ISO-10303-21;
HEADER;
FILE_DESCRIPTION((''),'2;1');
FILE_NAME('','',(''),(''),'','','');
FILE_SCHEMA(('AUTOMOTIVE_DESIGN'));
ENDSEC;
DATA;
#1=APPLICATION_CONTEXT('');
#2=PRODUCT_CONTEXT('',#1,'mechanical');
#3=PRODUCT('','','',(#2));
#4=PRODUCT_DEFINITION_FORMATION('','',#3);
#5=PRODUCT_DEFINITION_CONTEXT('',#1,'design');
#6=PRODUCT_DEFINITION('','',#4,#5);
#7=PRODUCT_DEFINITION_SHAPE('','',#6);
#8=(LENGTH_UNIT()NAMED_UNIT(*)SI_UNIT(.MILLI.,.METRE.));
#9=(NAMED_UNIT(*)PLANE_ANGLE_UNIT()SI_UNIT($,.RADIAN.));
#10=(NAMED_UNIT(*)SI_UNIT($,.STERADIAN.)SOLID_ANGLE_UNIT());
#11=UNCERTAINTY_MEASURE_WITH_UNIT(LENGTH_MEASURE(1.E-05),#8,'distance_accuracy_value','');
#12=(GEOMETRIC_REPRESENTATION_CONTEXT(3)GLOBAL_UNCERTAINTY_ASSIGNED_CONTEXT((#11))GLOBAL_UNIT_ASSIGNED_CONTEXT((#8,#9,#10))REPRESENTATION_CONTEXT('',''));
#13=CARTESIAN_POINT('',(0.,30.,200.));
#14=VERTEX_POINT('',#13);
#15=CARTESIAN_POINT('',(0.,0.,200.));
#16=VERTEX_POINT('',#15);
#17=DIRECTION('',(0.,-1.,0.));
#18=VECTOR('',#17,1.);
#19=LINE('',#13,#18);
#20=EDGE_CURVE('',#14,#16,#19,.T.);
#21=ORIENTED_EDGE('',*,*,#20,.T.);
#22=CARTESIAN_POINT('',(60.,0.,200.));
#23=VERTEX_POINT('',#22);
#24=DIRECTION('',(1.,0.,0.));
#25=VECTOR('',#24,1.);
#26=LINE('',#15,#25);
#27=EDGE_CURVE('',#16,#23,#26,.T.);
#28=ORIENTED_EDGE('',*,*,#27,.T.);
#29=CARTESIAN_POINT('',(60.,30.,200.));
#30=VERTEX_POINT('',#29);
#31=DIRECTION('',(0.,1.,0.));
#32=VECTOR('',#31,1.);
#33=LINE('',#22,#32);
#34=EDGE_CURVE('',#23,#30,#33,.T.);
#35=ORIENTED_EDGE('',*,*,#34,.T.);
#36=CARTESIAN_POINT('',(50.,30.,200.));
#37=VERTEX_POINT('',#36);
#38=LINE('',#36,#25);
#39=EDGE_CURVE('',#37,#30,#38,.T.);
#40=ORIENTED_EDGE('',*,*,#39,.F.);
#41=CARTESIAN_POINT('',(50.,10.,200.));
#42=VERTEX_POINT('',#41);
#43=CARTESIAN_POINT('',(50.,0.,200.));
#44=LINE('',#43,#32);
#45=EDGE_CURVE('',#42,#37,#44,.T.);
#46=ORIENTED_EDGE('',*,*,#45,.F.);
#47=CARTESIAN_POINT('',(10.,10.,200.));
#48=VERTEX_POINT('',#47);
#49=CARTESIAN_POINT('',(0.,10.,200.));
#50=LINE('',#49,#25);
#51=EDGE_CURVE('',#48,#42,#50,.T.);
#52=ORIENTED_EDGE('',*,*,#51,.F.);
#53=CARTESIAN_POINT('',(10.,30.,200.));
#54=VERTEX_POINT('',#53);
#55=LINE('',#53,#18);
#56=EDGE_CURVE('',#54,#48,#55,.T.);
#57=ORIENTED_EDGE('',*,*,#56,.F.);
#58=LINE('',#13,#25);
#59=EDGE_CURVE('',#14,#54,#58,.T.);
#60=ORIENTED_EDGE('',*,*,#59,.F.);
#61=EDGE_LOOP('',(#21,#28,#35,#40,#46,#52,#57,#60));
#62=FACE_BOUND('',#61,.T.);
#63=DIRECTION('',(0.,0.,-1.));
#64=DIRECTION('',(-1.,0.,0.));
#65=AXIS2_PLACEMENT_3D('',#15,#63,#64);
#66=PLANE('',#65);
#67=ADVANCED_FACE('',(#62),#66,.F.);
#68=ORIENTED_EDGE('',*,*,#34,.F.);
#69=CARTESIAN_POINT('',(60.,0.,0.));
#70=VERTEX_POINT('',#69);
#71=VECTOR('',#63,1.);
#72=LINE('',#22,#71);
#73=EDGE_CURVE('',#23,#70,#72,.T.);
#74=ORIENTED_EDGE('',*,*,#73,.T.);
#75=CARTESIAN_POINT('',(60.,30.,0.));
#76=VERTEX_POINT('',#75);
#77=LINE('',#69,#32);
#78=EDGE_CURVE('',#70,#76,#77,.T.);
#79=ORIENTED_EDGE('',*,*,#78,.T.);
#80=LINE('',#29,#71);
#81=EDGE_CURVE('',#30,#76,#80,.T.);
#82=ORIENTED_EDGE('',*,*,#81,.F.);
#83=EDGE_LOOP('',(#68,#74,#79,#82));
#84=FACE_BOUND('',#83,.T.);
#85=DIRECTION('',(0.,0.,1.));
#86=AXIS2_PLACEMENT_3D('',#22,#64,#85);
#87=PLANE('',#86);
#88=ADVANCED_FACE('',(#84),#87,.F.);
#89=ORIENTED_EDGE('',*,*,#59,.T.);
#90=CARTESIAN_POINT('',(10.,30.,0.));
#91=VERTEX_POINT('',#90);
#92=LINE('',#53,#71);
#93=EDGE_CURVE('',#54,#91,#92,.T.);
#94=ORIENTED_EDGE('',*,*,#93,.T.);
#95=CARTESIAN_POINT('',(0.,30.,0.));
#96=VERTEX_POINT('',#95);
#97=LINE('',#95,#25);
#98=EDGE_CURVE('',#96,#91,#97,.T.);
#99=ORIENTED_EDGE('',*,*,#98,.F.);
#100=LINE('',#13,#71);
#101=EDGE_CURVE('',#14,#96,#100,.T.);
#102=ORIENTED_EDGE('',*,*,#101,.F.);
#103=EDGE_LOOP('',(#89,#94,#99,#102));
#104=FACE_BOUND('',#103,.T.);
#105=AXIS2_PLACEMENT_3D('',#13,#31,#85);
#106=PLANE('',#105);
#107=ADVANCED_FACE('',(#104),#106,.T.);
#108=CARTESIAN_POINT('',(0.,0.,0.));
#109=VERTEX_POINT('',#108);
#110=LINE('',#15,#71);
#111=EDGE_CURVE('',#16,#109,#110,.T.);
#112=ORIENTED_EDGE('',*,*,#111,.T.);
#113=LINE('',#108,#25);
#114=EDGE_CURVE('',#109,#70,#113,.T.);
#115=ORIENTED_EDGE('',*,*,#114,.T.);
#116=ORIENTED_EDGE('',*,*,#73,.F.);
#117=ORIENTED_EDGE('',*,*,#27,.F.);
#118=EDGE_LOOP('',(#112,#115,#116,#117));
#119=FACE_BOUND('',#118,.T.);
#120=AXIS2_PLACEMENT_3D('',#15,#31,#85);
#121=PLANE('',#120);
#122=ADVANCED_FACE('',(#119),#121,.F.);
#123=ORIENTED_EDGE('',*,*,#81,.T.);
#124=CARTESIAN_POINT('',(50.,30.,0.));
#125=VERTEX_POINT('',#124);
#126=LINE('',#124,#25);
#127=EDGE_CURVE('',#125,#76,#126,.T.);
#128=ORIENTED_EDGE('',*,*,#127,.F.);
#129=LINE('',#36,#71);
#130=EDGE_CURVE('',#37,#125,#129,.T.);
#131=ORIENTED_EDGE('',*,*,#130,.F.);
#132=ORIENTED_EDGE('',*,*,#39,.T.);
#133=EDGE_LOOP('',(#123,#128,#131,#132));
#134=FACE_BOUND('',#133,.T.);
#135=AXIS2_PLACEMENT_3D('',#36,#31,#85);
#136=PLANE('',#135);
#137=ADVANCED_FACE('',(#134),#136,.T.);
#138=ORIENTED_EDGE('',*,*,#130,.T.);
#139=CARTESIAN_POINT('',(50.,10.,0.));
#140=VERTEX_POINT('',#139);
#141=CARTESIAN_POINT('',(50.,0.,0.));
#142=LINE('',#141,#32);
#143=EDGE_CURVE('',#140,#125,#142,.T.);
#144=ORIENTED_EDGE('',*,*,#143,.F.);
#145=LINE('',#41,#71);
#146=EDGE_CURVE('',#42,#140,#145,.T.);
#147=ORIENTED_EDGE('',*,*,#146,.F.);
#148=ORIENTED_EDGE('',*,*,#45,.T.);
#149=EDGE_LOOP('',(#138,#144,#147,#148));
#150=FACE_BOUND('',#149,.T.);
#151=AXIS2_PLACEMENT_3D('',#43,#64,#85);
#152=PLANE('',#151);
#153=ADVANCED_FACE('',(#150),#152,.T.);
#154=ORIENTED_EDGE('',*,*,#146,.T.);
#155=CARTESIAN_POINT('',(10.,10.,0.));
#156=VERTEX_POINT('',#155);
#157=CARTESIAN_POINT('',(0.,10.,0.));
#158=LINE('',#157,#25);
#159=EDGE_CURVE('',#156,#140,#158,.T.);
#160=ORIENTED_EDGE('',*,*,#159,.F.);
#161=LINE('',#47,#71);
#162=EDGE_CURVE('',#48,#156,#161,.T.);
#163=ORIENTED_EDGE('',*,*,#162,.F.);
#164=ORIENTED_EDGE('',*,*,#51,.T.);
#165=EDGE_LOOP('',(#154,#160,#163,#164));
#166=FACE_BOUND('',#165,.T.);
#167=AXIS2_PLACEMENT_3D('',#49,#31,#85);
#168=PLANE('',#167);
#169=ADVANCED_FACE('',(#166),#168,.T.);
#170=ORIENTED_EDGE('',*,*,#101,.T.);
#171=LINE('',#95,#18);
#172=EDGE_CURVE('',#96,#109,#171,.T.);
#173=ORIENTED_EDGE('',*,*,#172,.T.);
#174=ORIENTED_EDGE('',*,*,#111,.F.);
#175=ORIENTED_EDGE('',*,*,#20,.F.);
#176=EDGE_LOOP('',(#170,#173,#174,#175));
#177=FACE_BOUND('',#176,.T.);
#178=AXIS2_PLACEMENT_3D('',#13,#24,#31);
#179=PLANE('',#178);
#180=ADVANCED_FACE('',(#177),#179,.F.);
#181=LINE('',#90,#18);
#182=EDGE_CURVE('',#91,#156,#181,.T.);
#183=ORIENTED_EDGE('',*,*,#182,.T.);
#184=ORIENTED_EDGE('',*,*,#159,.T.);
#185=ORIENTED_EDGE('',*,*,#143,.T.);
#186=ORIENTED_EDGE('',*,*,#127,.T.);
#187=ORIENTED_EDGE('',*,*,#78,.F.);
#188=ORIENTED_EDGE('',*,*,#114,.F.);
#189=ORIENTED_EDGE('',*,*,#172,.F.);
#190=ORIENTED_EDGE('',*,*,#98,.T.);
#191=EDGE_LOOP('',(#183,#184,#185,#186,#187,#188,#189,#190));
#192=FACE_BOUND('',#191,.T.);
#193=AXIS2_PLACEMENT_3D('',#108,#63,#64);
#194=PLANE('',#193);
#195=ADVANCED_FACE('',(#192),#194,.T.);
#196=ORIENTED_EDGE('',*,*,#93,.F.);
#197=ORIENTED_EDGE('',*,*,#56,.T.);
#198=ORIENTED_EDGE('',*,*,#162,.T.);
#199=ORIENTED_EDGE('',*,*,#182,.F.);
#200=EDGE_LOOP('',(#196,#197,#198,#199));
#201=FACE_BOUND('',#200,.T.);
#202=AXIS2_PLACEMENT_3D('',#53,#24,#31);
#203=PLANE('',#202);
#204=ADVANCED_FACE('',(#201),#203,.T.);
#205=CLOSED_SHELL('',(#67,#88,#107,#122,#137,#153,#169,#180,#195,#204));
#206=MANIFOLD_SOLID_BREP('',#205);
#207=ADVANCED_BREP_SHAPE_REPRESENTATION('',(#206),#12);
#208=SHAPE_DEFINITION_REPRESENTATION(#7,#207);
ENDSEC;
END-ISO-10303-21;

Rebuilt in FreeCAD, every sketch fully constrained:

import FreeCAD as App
import Part
import Sketcher
from FreeCAD import Vector
Q = App.Units.Quantity


def add_polygon(sketch, points):
    """Adds a closed chain of lines whose ends are joined by coincident constraints."""
    first, n = sketch.GeometryCount, len(points)
    for a, b in zip(points, points[1:] + points[:1]):
        sketch.addGeometry(Part.LineSegment(App.Vector(*a, 0), App.Vector(*b, 0)), False)
    for i in range(n):
        sketch.addConstraint(Sketcher.Constraint("Coincident", first + i, 2, first + (i + 1) % n, 1))

doc = App.newDocument("Part")
params = doc.addObject("Spreadsheet::Sheet", "Params")
for row, (alias, value) in enumerate([
    ("sketch1_width", "60 mm"),
    ("sketch1_width2", "10 mm"),
    ("sketch1_height", "30 mm"),
    ("sketch1_height2", "20 mm"),
    ("pad1_length", "200 mm"),
], start=1):
    params.set(f"A{row}", alias)
    params.set(f"B{row}", "=" + value)
    params.setAlias(f"B{row}", alias)

body = doc.addObject("PartDesign::Body", "Body")

# Sketch on XY plane
sketch1 = body.newObject("Sketcher::SketchObject", "Sketch")
sketch1.AttachmentSupport = (doc.getObject("XY_Plane"), [""])
sketch1.MapMode = "FlatFace"
add_polygon(sketch1, [(0, 30), (0, 0), (60, 0), (60, 30), (50, 30), (50, 10), (10, 10), (10, 30)])  # lines 0-7
sketch1.addConstraint([
    Sketcher.Constraint("Vertical", 0),
    Sketcher.Constraint("Horizontal", 1),
    Sketcher.Constraint("Vertical", 2),
    Sketcher.Constraint("Horizontal", 3),
    Sketcher.Constraint("Vertical", 4),
    Sketcher.Constraint("Horizontal", 5),
    Sketcher.Constraint("Vertical", 6),
    Sketcher.Constraint("Horizontal", 7),
    Sketcher.Constraint("Coincident", 0, 2, -1, 1),
    Sketcher.Constraint("Horizontal", 3, 2, 6, 2),
    Sketcher.Constraint("Equal", 3, 7),
    Sketcher.Constraint("DistanceX", 1, 1, 1, 2, Q("60 mm")),
    Sketcher.Constraint("DistanceX", 3, 2, 3, 1, Q("10 mm")),
    Sketcher.Constraint("DistanceY", 0, 2, 0, 1, Q("30 mm")),
    Sketcher.Constraint("DistanceY", 4, 2, 4, 1, Q("20 mm")),
])
sketch1.setExpression("Constraints[19]", "Params.sketch1_width")
sketch1.setExpression("Constraints[20]", "Params.sketch1_width2")
sketch1.setExpression("Constraints[21]", "Params.sketch1_height")
sketch1.setExpression("Constraints[22]", "Params.sketch1_height2")
pad1 = body.newObject("PartDesign::Pad", "Pad")
pad1.Profile = sketch1
pad1.setExpression("Length", "Params.pad1_length")

doc.recompute()
